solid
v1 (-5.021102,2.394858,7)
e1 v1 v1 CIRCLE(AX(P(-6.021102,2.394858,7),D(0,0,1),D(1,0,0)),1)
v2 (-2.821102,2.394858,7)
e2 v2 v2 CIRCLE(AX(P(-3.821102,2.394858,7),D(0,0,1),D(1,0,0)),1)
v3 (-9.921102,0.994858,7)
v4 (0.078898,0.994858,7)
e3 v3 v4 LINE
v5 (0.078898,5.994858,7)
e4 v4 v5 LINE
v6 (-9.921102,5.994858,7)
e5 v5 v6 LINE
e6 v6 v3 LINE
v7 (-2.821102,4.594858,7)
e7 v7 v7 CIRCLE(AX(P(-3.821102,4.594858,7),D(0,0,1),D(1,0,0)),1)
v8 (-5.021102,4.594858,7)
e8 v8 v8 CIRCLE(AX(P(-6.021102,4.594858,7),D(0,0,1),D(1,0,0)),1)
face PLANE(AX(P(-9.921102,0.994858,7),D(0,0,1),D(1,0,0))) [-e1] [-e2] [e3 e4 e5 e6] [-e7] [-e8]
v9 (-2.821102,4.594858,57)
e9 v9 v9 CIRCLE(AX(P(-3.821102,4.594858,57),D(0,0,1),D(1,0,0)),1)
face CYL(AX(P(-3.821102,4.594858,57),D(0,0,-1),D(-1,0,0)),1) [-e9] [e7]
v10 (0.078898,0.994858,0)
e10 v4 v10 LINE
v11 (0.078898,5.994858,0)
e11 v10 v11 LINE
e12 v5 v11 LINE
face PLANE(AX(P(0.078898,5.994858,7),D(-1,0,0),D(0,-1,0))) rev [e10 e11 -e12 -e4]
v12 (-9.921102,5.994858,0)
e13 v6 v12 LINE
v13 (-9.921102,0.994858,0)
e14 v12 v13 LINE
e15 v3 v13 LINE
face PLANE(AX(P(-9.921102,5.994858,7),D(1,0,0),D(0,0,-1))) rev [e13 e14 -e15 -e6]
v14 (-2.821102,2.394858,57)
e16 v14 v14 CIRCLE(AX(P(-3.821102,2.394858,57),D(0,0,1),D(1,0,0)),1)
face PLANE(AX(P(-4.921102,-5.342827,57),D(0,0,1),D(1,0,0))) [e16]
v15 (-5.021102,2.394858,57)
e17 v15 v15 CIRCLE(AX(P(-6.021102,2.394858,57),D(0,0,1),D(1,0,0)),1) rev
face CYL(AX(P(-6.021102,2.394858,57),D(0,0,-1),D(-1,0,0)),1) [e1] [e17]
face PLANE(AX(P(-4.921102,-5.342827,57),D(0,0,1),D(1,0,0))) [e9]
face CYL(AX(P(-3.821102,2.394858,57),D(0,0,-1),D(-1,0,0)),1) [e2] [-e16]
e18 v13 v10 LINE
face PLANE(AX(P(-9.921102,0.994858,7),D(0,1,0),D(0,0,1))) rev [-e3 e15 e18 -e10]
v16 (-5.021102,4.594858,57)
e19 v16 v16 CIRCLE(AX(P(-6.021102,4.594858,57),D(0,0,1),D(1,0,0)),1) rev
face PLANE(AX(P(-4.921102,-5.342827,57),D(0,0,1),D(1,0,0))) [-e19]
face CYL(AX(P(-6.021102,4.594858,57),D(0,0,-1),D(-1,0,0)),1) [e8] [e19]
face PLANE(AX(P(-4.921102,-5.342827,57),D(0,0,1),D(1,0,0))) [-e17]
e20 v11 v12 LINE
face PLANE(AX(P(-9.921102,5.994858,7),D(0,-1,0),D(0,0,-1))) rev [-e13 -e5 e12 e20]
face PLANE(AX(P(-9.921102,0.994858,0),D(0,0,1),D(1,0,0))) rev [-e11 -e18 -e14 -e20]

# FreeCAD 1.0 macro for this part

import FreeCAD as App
import Part
import Sketcher

V = App.Vector
Q = App.Units.Quantity


def add_polygon(sketch, points):
    """Adds a closed chain of lines whose ends are joined by coincident constraints."""
    first, n = sketch.GeometryCount, len(points)
    for a, b in zip(points, points[1:] + points[:1]):
        sketch.addGeometry(Part.LineSegment(App.Vector(*a, 0), App.Vector(*b, 0)), False)
    for i in range(n):
        sketch.addConstraint(Sketcher.Constraint("Coincident", first + i, 2, first + (i + 1) % n, 1))

doc = App.newDocument("Part")
body = doc.addObject("PartDesign::Body", "Body")

# Sketch on XY plane
sketch1 = body.newObject("Sketcher::SketchObject", "Sketch")
sketch1.AttachmentSupport = (doc.getObject("XY_Plane"), [""])
sketch1.MapMode = "FlatFace"
add_polygon(sketch1, [(-10, 6), (-10, 1), (0, 1), (0, 6)])  # lines 0-3
sketch1.addConstraint(Sketcher.Constraint("Vertical", 0))
sketch1.addConstraint(Sketcher.Constraint("Horizontal", 1))
sketch1.addConstraint(Sketcher.Constraint("Vertical", 2))
sketch1.addConstraint(Sketcher.Constraint("Horizontal", 3))
sketch1.addConstraint(Sketcher.Constraint("DistanceX", 1, 1, 1, 2, Q("10 mm")))
sketch1.addConstraint(Sketcher.Constraint("DistanceY", 0, 2, 0, 1, Q("5 mm")))
sketch1.addConstraint(Sketcher.Constraint("DistanceX", 0, 2, -1, 1, Q("9.921102 mm")))
sketch1.addConstraint(Sketcher.Constraint("DistanceY", -1, 1, 0, 2, Q("0.994858 mm")))
pad1 = body.newObject("PartDesign::Pad", "Pad")
pad1.Profile = sketch1
pad1.Length = 7

# Sketch on XY plane
sketch2 = body.newObject("Sketcher::SketchObject", "Sketch001")
sketch2.AttachmentSupport = (doc.getObject("XY_Plane"), [""])
sketch2.MapMode = "FlatFace"
sketch2.AttachmentOffset = App.Placement(V(0, 0, 7), App.Rotation())
sketch2.addGeometry(Part.Circle(V(-3.8, 4.6, 0), V(0, 0, 1), 1), False)
sketch2.addGeometry(Part.Circle(V(-3.8, 2.4, 0), V(0, 0, 1), 1), False)
sketch2.addGeometry(Part.Circle(V(-6, 4.6, 0), V(0, 0, 1), 1), False)
sketch2.addGeometry(Part.Circle(V(-6, 2.4, 0), V(0, 0, 1), 1), False)
sketch2.addConstraint(Sketcher.Constraint("Equal", 0, 1))
sketch2.addConstraint(Sketcher.Constraint("Equal", 1, 2))
sketch2.addConstraint(Sketcher.Constraint("Equal", 2, 3))
sketch2.addConstraint(Sketcher.Constraint("Horizontal", 0, 3, 2, 3))
sketch2.addConstraint(Sketcher.Constraint("Horizontal", 1, 3, 3, 3))
sketch2.addConstraint(Sketcher.Constraint("Vertical", 0, 3, 1, 3))
sketch2.addConstraint(Sketcher.Constraint("Vertical", 2, 3, 3, 3))
sketch2.addConstraint(Sketcher.Constraint("Diameter", 0, Q("2 mm")))
sketch2.addConstraint(Sketcher.Constraint("DistanceY", 1, 3, 0, 3, Q("2.2 mm")))
sketch2.addConstraint(Sketcher.Constraint("DistanceX", 2, 3, 0, 3, Q("2.2 mm")))
sketch2.addConstraint(Sketcher.Constraint("DistanceX", 0, 3, -1, 1, Q("3.821102 mm")))
sketch2.addConstraint(Sketcher.Constraint("DistanceY", -1, 1, 0, 3, Q("4.594858 mm")))
pad2 = body.newObject("PartDesign::Pad", "Pad001")
pad2.Profile = sketch2
pad2.Length = 50

doc.recompute()
